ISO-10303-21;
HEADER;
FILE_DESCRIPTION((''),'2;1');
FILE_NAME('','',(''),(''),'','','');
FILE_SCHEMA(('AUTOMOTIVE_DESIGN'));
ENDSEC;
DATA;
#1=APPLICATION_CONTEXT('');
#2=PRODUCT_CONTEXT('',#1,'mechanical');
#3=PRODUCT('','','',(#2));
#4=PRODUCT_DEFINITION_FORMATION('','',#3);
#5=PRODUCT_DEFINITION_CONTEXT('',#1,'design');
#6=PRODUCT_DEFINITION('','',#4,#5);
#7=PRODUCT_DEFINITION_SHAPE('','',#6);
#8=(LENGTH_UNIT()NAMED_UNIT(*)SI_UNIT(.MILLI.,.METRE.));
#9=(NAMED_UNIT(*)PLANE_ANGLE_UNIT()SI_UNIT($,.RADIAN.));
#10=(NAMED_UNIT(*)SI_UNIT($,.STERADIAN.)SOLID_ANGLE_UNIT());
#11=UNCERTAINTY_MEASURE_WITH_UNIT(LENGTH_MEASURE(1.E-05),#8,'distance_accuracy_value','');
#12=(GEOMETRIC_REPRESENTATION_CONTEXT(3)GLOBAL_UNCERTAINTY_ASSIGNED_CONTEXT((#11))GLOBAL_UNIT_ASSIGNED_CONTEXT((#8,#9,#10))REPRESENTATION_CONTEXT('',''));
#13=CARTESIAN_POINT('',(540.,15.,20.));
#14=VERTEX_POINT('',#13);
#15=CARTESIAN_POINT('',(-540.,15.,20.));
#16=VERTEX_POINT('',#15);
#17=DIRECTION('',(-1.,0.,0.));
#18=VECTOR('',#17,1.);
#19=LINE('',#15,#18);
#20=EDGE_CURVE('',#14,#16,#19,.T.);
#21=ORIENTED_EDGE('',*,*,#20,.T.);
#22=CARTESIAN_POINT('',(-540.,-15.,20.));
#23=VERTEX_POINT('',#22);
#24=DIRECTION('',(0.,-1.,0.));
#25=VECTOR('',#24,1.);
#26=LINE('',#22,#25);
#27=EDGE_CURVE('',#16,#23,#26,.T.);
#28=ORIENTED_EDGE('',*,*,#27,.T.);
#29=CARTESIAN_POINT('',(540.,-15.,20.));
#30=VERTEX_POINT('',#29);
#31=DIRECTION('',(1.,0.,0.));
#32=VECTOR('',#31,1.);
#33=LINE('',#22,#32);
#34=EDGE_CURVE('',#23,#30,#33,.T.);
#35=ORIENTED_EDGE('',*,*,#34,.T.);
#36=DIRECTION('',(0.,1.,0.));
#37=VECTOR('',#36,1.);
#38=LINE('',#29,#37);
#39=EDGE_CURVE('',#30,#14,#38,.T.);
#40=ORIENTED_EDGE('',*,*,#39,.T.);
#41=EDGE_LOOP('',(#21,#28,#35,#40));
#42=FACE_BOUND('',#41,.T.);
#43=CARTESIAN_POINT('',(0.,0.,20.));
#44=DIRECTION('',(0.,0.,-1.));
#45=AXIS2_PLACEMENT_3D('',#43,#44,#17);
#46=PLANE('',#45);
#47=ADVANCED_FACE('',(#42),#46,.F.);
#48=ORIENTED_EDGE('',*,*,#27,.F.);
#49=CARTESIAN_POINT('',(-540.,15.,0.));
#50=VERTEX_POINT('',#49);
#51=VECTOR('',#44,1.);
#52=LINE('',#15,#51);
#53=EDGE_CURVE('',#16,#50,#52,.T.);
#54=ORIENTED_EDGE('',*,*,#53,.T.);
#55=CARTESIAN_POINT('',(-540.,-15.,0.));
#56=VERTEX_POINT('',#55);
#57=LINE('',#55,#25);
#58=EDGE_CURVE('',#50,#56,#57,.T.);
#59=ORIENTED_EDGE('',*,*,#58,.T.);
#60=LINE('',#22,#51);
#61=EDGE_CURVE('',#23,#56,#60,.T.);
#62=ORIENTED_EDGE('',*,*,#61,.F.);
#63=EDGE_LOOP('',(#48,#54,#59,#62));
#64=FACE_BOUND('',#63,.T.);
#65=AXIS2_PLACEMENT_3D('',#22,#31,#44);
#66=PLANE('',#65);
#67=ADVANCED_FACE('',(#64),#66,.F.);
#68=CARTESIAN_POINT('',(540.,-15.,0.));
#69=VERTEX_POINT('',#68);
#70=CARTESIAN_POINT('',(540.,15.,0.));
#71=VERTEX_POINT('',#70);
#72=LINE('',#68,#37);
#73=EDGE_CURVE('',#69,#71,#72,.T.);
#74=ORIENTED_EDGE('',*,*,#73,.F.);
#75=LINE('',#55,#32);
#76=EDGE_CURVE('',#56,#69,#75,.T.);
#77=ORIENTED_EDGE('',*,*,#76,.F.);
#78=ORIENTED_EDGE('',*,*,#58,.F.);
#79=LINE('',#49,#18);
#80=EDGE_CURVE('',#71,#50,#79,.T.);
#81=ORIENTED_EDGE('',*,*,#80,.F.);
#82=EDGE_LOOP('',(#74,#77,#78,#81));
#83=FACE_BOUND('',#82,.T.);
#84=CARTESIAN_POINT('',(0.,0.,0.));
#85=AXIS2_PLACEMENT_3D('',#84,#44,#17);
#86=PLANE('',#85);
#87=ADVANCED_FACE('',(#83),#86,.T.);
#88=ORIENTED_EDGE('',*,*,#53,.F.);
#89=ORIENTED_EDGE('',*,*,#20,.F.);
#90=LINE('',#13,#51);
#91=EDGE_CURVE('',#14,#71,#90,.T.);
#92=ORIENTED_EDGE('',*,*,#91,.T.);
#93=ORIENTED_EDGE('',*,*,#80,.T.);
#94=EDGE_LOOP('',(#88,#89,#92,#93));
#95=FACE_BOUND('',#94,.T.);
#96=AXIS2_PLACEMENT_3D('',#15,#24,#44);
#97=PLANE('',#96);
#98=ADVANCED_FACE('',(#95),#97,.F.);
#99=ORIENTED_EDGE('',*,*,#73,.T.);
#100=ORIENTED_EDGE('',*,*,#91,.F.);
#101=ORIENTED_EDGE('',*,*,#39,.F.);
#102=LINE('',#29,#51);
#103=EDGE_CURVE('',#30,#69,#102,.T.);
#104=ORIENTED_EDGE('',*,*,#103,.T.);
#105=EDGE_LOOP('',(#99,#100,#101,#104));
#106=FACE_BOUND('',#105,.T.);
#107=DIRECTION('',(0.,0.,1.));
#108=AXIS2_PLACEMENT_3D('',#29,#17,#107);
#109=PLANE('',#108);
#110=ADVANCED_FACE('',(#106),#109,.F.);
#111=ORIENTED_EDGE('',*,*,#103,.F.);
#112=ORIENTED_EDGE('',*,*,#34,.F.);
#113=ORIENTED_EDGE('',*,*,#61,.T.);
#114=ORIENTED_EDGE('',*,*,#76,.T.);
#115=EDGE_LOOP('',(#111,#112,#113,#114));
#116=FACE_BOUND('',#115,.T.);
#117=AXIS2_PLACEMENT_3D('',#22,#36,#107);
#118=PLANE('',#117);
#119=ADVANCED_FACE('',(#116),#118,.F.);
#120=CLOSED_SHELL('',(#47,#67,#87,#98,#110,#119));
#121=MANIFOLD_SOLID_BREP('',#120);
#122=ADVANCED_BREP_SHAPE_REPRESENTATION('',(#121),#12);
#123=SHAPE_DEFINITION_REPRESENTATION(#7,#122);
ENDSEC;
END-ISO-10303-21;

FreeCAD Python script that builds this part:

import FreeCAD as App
import Part
import Sketcher

V = App.Vector
Q = App.Units.Quantity


def add_polygon(sketch, points):
    """Adds a closed chain of lines whose ends are joined by coincident constraints."""
    first, n = sketch.GeometryCount, len(points)
    for a, b in zip(points, points[1:] + points[:1]):
        sketch.addGeometry(Part.LineSegment(App.Vector(*a, 0), App.Vector(*b, 0)), False)
    for i in range(n):
        sketch.addConstraint(Sketcher.Constraint("Coincident", first + i, 2, first + (i + 1) % n, 1))

doc = App.newDocument("Part")
body = doc.addObject("PartDesign::Body", "Body")

# Sketch on XY plane
sketch1 = body.newObject("Sketcher::SketchObject", "Sketch")
sketch1.AttachmentSupport = (doc.getObject("XY_Plane"), [""])
sketch1.MapMode = "FlatFace"
add_polygon(sketch1, [(-540, 15), (-540, -15), (540, -15), (540, 15)])  # lines 0-3
sketch1.addConstraint(Sketcher.Constraint("Vertical", 0))
sketch1.addConstraint(Sketcher.Constraint("Horizontal", 1))
sketch1.addConstraint(Sketcher.Constraint("Vertical", 2))
sketch1.addConstraint(Sketcher.Constraint("Horizontal", 3))
sketch1.addConstraint(Sketcher.Constraint("Symmetric", 0, 2, 2, 2, -1, 1))
sketch1.addConstraint(Sketcher.Constraint("DistanceX", 1, 1, 1, 2, Q("1080 mm")))
sketch1.addConstraint(Sketcher.Constraint("DistanceY", 0, 2, 0, 1, Q("30 mm")))
pad1 = body.newObject("PartDesign::Pad", "Pad")
pad1.Profile = sketch1
pad1.Length = 20

doc.recompute()
